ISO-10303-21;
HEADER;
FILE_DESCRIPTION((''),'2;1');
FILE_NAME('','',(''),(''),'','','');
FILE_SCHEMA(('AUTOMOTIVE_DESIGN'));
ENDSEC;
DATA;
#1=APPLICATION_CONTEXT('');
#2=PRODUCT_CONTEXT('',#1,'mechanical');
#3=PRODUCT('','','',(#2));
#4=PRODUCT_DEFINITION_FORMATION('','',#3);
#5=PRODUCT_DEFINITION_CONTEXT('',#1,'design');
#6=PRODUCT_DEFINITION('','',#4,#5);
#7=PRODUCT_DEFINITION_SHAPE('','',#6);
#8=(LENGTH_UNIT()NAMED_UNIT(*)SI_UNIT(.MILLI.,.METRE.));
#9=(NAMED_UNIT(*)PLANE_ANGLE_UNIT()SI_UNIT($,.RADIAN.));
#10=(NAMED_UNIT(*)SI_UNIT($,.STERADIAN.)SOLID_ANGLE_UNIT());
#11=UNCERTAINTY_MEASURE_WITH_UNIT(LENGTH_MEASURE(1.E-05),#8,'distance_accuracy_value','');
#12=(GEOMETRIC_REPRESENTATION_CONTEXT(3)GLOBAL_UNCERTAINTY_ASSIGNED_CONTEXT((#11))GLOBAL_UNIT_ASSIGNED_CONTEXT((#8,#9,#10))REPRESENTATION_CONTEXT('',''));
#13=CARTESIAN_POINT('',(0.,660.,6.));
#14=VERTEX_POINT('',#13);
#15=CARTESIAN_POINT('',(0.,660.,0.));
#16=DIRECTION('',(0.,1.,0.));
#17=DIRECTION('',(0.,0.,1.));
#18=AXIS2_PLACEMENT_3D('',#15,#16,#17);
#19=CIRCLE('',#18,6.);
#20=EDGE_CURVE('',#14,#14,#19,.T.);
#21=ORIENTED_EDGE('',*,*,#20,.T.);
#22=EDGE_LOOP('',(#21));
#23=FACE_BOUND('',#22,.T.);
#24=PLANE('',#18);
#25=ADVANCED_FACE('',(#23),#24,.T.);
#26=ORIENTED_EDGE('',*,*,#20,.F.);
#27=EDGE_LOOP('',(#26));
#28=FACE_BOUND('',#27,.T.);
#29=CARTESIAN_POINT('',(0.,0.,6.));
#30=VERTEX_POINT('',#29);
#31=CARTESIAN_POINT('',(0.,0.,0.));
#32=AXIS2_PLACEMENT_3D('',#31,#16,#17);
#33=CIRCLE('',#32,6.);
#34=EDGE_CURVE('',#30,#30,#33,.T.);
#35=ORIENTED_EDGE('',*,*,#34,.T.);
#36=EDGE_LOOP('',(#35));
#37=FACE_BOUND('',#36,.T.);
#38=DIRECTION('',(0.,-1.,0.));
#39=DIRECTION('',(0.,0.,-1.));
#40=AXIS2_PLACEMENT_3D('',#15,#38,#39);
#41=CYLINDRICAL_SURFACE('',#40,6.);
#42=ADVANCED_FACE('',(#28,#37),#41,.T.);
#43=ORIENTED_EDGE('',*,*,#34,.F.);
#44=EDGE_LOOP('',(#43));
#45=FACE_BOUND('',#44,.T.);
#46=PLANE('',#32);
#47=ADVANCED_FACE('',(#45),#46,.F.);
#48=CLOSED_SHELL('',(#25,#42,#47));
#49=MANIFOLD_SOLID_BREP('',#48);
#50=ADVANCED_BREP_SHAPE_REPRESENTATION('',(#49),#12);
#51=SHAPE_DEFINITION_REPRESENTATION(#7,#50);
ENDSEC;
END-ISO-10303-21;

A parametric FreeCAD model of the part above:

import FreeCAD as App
import Part
import Sketcher
from FreeCAD import Vector

doc = App.newDocument("Part")
body = doc.addObject("PartDesign::Body", "Body")

# Sketch on XZ plane
sketch1 = body.newObject("Sketcher::SketchObject", "Sketch")
sketch1.AttachmentSupport = (doc.getObject("XZ_Plane"), [""])
sketch1.MapMode = "FlatFace"
sketch1.addGeometry(Part.Circle(Vector(0, 0, 0), Vector(0, 0, 1), 6), False)
sketch1.addConstraint(Sketcher.Constraint("Coincident", 0, 3, -1, 1))
sketch1.addConstraint(Sketcher.Constraint("Diameter", 0, 12.0))
pad1 = body.newObject("PartDesign::Pad", "Pad")
pad1.Profile = sketch1
pad1.Length = 660
pad1.Reversed = True

doc.recompute()
